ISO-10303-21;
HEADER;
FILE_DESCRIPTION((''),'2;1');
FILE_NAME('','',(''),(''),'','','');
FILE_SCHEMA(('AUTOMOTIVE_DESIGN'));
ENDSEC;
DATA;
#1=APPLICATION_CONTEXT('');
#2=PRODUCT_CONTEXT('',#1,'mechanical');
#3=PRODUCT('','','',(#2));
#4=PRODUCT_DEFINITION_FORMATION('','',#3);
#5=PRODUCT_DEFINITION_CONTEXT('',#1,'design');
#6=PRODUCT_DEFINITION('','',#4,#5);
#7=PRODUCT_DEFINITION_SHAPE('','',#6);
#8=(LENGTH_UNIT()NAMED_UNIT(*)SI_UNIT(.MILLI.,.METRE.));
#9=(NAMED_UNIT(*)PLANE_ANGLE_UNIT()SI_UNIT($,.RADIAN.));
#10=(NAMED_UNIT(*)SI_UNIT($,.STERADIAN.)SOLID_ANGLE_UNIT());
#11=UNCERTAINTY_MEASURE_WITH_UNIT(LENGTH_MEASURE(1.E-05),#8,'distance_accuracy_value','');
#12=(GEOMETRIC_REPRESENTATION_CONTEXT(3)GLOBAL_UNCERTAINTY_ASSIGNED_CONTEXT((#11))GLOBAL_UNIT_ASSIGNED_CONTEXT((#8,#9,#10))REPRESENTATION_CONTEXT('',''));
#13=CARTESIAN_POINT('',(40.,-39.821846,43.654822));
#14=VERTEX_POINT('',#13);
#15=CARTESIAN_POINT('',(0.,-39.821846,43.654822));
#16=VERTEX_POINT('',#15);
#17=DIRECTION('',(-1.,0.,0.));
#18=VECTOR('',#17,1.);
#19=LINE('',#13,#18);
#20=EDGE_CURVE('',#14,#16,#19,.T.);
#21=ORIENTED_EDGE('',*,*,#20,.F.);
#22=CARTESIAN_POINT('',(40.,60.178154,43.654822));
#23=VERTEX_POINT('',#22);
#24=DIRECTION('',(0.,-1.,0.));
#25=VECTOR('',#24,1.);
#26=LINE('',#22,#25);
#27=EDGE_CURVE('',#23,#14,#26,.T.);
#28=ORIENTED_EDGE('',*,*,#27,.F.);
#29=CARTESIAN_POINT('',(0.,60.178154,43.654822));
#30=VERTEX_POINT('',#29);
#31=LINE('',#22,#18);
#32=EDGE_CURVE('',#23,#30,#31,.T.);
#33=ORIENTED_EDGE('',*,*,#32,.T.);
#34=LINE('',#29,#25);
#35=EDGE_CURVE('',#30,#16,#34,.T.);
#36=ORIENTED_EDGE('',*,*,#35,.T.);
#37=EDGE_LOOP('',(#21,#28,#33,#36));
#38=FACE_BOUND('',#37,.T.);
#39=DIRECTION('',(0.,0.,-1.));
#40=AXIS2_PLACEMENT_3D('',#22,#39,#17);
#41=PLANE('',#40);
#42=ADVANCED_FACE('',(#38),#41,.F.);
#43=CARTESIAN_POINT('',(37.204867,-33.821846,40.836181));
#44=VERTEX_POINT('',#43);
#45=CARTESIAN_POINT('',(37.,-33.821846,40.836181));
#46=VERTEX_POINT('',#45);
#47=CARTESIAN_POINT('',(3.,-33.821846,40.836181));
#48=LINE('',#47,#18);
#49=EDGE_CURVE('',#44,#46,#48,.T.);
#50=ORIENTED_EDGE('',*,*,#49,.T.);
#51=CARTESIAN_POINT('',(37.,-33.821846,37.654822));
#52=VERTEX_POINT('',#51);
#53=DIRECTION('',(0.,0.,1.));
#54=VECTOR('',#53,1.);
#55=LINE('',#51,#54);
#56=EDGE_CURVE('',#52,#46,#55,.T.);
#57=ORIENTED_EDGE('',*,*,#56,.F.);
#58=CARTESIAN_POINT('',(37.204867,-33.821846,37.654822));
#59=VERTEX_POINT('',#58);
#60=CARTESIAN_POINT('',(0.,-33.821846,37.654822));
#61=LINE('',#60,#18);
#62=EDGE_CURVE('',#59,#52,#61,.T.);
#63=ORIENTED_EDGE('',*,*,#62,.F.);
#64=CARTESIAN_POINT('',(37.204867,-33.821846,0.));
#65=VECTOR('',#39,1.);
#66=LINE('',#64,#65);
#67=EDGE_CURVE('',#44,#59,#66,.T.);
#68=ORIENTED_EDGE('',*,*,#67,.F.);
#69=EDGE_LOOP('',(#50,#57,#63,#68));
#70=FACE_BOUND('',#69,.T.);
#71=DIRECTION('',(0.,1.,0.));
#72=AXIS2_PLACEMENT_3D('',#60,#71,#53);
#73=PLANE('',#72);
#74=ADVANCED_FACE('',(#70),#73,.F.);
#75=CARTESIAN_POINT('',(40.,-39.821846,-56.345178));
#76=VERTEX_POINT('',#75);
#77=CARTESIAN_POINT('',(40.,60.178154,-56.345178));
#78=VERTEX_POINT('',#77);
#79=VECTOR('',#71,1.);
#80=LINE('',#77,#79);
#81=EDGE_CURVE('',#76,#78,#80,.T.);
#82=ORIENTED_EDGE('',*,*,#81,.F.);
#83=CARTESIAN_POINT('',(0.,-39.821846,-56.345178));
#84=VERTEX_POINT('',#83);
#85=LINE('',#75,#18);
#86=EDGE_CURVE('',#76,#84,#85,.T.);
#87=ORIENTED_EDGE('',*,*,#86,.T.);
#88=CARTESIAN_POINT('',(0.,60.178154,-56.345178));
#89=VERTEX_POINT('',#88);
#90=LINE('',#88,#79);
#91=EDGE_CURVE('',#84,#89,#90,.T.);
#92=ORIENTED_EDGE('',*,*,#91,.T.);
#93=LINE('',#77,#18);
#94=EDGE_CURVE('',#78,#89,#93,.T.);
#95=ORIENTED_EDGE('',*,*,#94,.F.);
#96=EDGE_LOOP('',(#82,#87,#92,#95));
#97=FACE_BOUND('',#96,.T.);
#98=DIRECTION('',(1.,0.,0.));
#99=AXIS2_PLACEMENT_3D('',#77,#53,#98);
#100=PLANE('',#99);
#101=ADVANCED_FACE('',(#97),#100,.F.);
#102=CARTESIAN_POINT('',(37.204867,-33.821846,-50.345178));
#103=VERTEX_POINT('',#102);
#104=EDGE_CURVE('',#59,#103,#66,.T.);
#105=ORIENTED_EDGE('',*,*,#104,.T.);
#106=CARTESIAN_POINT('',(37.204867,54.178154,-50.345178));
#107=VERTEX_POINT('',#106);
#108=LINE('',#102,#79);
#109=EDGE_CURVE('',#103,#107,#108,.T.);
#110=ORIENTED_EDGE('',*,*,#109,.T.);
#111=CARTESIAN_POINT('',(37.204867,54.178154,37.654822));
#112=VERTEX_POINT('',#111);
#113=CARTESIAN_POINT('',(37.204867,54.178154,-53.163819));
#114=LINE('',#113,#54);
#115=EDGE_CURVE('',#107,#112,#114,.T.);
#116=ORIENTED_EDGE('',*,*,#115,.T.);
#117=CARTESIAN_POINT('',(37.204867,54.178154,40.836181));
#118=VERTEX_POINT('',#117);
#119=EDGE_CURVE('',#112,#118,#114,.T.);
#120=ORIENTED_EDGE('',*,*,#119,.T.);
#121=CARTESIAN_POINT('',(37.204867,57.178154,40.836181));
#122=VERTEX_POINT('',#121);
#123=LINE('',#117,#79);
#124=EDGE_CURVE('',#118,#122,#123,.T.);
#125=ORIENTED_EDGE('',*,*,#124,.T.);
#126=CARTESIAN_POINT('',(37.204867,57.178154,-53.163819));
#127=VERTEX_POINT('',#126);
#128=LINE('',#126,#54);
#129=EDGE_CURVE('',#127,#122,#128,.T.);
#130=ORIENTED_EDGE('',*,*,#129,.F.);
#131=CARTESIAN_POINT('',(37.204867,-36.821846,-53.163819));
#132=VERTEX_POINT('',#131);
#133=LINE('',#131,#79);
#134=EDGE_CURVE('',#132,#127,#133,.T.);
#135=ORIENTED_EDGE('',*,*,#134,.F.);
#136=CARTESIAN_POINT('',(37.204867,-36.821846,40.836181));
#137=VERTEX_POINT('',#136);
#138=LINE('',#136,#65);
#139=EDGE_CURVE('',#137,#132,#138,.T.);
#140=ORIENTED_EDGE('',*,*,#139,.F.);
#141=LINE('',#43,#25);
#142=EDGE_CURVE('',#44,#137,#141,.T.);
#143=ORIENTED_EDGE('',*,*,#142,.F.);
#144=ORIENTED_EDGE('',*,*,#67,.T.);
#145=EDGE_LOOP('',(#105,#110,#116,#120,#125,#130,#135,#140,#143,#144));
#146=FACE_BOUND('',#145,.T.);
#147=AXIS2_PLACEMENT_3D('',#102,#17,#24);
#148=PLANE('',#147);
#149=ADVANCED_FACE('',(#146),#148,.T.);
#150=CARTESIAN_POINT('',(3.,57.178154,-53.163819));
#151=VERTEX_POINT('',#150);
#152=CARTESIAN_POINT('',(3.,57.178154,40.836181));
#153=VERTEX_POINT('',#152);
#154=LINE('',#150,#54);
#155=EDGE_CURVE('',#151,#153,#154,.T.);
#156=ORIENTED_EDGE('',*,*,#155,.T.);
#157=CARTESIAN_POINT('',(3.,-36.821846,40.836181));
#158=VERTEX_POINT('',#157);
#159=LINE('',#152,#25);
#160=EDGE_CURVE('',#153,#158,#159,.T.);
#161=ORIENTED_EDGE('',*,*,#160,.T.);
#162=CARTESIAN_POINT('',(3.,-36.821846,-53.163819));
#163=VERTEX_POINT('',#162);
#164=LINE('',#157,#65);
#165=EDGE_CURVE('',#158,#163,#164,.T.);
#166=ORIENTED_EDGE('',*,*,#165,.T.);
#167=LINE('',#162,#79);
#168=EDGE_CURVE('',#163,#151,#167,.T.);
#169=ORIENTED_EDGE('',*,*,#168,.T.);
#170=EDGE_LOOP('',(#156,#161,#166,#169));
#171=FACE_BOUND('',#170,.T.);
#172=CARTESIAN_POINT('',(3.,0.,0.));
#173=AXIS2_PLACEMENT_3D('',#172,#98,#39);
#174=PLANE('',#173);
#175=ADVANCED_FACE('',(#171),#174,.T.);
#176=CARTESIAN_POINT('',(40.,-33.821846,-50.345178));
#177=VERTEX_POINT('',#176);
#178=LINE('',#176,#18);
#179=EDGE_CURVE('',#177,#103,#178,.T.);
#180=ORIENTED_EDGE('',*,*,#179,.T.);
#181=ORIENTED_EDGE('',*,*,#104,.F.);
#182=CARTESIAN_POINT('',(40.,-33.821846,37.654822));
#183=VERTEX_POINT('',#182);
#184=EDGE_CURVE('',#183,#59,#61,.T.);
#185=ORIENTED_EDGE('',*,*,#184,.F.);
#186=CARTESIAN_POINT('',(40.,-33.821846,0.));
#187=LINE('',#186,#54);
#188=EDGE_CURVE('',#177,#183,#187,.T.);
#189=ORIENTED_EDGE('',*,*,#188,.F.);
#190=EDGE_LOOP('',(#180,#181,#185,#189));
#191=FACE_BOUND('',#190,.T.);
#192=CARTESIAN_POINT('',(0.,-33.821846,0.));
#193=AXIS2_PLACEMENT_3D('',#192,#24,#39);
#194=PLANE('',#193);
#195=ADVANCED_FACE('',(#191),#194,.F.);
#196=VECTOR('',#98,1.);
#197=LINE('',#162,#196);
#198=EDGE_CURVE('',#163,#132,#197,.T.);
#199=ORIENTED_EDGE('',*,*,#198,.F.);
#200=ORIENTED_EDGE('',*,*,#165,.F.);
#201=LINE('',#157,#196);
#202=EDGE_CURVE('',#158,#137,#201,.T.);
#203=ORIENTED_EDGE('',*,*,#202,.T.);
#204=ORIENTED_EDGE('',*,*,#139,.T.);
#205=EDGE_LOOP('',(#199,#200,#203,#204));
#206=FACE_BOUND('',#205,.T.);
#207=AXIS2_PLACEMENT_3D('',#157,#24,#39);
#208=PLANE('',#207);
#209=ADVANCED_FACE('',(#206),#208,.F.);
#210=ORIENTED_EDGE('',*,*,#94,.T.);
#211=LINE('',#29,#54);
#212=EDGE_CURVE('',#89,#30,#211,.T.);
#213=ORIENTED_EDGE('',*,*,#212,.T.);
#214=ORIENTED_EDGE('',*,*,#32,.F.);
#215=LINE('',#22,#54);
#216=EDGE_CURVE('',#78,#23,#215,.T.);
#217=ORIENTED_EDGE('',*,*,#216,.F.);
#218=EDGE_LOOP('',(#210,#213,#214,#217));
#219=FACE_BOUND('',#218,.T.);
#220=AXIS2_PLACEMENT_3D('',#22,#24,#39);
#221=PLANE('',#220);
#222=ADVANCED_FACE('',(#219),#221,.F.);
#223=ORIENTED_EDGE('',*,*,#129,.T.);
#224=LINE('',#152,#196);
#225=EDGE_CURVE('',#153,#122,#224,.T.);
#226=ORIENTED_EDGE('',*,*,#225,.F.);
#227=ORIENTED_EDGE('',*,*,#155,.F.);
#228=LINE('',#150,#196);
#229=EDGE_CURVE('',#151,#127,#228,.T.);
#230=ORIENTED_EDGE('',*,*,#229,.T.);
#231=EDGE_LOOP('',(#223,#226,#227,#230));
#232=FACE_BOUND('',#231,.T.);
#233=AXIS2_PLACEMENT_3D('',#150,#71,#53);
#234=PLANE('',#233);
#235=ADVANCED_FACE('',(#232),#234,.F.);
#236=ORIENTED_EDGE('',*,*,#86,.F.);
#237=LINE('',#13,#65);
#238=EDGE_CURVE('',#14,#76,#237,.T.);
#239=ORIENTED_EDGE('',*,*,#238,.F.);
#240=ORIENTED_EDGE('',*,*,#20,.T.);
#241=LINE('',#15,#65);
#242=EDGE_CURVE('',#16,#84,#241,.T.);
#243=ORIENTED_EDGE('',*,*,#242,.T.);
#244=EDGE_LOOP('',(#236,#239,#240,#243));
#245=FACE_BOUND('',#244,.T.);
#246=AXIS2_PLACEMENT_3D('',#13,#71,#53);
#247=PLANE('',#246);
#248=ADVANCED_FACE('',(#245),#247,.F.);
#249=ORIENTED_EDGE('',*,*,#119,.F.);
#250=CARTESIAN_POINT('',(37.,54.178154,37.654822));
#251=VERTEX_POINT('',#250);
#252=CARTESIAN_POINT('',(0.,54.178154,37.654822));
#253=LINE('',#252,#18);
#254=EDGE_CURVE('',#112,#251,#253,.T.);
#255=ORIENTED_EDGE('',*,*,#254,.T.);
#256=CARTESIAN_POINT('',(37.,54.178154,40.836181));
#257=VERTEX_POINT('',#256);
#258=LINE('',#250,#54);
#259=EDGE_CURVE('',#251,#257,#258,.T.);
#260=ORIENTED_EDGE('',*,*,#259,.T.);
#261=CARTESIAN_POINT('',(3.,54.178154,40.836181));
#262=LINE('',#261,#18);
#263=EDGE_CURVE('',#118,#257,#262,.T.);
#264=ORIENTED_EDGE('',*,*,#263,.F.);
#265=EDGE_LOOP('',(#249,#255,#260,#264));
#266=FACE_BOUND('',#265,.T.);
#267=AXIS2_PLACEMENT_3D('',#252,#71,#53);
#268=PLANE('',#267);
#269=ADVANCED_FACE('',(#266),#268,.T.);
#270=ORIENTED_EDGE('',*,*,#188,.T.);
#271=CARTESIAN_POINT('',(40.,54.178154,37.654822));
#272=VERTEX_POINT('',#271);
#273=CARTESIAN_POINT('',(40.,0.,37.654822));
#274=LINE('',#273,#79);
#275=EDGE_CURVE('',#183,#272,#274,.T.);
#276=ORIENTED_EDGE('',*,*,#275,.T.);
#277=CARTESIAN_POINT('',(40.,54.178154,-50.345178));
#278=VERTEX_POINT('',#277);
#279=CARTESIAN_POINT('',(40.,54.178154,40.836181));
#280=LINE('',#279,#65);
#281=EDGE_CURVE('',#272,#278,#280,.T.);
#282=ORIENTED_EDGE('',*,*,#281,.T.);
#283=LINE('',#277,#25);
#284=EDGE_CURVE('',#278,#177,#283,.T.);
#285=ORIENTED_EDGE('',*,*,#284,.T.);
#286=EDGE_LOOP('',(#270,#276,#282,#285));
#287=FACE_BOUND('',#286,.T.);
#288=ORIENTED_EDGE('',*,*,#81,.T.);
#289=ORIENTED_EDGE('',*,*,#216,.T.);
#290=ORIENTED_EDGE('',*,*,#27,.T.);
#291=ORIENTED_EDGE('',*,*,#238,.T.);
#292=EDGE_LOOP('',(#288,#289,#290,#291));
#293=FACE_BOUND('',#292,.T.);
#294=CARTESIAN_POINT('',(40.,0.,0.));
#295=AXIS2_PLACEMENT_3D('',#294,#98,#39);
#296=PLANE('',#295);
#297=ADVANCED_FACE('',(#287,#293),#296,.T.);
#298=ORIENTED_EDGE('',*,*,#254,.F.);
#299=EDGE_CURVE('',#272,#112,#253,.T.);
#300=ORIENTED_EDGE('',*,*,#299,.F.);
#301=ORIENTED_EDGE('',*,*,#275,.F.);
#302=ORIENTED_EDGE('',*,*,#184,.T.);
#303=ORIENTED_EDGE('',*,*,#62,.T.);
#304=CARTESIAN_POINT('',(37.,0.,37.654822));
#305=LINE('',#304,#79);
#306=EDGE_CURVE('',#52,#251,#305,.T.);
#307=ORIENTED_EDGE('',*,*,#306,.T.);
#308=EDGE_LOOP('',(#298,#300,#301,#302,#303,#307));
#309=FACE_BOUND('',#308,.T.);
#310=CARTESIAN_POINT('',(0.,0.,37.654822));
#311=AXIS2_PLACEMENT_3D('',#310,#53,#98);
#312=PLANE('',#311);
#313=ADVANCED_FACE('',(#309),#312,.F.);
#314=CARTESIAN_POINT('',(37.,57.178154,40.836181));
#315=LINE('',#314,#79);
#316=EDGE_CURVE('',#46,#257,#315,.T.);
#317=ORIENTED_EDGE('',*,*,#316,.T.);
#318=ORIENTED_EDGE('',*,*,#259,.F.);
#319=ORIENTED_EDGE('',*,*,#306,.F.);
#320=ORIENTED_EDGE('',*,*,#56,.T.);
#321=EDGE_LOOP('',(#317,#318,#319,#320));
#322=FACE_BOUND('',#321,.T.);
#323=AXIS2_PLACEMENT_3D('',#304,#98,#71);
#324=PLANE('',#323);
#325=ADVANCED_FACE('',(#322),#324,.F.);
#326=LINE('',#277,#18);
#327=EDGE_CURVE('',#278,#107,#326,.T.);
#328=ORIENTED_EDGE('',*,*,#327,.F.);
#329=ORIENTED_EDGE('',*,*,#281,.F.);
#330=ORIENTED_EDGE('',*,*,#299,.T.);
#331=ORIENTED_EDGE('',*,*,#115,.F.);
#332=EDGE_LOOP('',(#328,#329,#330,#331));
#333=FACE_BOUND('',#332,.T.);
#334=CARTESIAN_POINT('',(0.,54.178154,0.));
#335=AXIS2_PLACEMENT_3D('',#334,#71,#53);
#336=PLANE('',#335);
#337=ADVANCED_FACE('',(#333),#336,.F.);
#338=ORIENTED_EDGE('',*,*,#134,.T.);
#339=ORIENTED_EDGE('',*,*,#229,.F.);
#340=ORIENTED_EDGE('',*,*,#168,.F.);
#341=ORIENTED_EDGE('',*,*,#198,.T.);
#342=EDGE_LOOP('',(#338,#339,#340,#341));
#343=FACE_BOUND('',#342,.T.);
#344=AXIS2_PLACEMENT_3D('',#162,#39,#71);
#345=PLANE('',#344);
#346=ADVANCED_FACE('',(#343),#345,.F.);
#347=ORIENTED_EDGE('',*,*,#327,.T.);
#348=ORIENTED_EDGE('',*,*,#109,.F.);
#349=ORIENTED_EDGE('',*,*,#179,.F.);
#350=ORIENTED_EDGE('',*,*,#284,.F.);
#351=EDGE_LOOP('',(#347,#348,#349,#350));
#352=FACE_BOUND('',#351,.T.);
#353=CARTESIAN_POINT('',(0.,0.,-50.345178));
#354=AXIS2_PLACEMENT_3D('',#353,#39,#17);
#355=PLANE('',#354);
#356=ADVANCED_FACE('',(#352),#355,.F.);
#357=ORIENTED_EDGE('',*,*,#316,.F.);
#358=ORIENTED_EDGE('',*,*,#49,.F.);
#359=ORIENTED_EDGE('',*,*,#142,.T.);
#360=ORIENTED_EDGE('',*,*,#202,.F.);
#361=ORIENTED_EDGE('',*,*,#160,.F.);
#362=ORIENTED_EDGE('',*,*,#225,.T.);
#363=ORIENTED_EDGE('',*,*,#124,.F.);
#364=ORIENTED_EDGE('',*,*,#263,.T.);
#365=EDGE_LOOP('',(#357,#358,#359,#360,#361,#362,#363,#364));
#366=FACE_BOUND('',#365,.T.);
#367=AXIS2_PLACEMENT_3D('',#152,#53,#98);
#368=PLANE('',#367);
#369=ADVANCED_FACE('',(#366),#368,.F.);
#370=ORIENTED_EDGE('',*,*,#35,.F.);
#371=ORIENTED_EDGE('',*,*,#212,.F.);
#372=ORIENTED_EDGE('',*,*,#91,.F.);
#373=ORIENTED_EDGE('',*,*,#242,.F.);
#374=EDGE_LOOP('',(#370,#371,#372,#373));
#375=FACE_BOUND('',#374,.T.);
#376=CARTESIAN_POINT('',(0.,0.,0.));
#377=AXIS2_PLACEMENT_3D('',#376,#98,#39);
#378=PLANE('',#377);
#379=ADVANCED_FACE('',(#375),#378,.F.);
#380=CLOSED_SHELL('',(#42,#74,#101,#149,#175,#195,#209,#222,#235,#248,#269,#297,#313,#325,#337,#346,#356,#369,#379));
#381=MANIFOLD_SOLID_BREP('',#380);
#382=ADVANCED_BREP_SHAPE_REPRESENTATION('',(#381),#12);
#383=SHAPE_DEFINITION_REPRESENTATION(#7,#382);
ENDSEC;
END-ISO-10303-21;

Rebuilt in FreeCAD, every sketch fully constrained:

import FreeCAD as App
import Part
import Sketcher

V = App.Vector
Q = App.Units.Quantity


def add_polygon(sketch, points):
    """Adds a closed chain of lines whose ends are joined by coincident constraints."""
    first, n = sketch.GeometryCount, len(points)
    for a, b in zip(points, points[1:] + points[:1]):
        sketch.addGeometry(Part.LineSegment(App.Vector(*a, 0), App.Vector(*b, 0)), False)
    for i in range(n):
        sketch.addConstraint(Sketcher.Constraint("Coincident", first + i, 2, first + (i + 1) % n, 1))

doc = App.newDocument("Part")
body = doc.addObject("PartDesign::Body", "Body")

# Sketch on YZ plane
sketch1 = body.newObject("Sketcher::SketchObject", "Sketch")
sketch1.AttachmentSupport = (doc.getObject("YZ_Plane"), [""])
sketch1.MapMode = "FlatFace"
add_polygon(sketch1, [(60, 44), (-40, 44), (-40, -56), (60, -56)])  # lines 0-3
sketch1.addConstraint([
    Sketcher.Constraint("Horizontal", 0),
    Sketcher.Constraint("Vertical", 1),
    Sketcher.Constraint("Horizontal", 2),
    Sketcher.Constraint("Vertical", 3),
    Sketcher.Constraint("Equal", 2, 1),
    Sketcher.Constraint("DistanceX", 0, 2, 0, 1, Q("100 mm")),
    Sketcher.Constraint("DistanceX", 0, 2, -1, 1, Q("39.821846 mm")),
    Sketcher.Constraint("DistanceY", -1, 1, 0, 2, Q("43.654822 mm")),
])
pad1 = body.newObject("PartDesign::Pad", "Pad")
pad1.Profile = sketch1
pad1.Length = 40

# Sketch on YZ plane
sketch2 = body.newObject("Sketcher::SketchObject", "Sketch001")
sketch2.AttachmentSupport = (doc.getObject("YZ_Plane"), [""])
sketch2.MapMode = "FlatFace"
sketch2.AttachmentOffset = App.Placement(V(0, 0, 40), App.Rotation())
add_polygon(sketch2, [(57, 41), (-37, 41), (-37, -53), (57, -53)])  # lines 0-3
sketch2.addConstraint([
    Sketcher.Constraint("Horizontal", 0),
    Sketcher.Constraint("Vertical", 1),
    Sketcher.Constraint("Horizontal", 2),
    Sketcher.Constraint("Vertical", 3),
    Sketcher.Constraint("Equal", 2, 1),
    Sketcher.Constraint("DistanceX", 0, 2, 0, 1, Q("94 mm")),
    Sketcher.Constraint("DistanceY", -1, 1, 0, 2, Q("40.836181 mm")),
    Sketcher.Constraint("DistanceX", 0, 2, -1, 1, Q("36.821846 mm")),
])
pocket1 = body.newObject("PartDesign::Pocket", "Pocket")
pocket1.Profile = sketch2
pocket1.Length = 37

# Sketch on XY plane
sketch3 = body.newObject("Sketcher::SketchObject", "Sketch002")
sketch3.AttachmentSupport = (doc.getObject("XY_Plane"), [""])
sketch3.MapMode = "FlatFace"
sketch3.AttachmentOffset = App.Placement(V(0, 0, 43.654822), App.Rotation())
add_polygon(sketch3, [(37, 54.2), (37, -33.8), (40, -33.8), (40, 54.2)])  # lines 0-3
sketch3.addConstraint([
    Sketcher.Constraint("Vertical", 0),
    Sketcher.Constraint("Horizontal", 1),
    Sketcher.Constraint("Vertical", 2),
    Sketcher.Constraint("Horizontal", 3),
    Sketcher.Constraint("DistanceX", 1, 1, 1, 2, Q("3 mm")),
    Sketcher.Constraint("DistanceY", 0, 2, 0, 1, Q("88 mm")),
    Sketcher.Constraint("DistanceX", -1, 1, 0, 2, Q("37 mm")),
    Sketcher.Constraint("DistanceY", 0, 2, -1, 1, Q("33.821846 mm")),
])
pad2 = body.newObject("PartDesign::Pad", "Pad001")
pad2.Profile = sketch3
pad2.Length = 6
pad2.Reversed = True

# Sketch on XY plane
sketch4 = body.newObject("Sketcher::SketchObject", "Sketch003")
sketch4.AttachmentSupport = (doc.getObject("XY_Plane"), [""])
sketch4.MapMode = "FlatFace"
sketch4.AttachmentOffset = App.Placement(V(0, 0, -56.345178), App.Rotation())
add_polygon(sketch4, [(40, 54.2), (40, -33.8), (37.2, -33.8), (37.2, 54.2)])  # lines 0-3
sketch4.addConstraint([
    Sketcher.Constraint("Vertical", 0),
    Sketcher.Constraint("Horizontal", 1),
    Sketcher.Constraint("Vertical", 2),
    Sketcher.Constraint("Horizontal", 3),
    Sketcher.Constraint("DistanceY", 0, 2, 0, 1, Q("88 mm")),
    Sketcher.Constraint("DistanceX", -1, 1, 0, 2, Q("40 mm")),
    Sketcher.Constraint("DistanceX", 1, 2, 1, 1, Q("2.795133 mm")),
    Sketcher.Constraint("DistanceY", 0, 2, -1, 1, Q("33.821846 mm")),
])
pad3 = body.newObject("PartDesign::Pad", "Pad002")
pad3.Profile = sketch4
pad3.Length = 6

# Sketch on XZ plane
sketch5 = body.newObject("Sketcher::SketchObject", "Sketch004")
sketch5.AttachmentSupport = (doc.getObject("XZ_Plane"), [""])
sketch5.MapMode = "FlatFace"
sketch5.AttachmentOffset = App.Placement(V(0, 0, 39.821846), App.Rotation())
add_polygon(sketch5, [(40, 40.8), (37.2, 40.8), (37.2, -53.2), (40, -53.2)])  # lines 0-3
sketch5.addConstraint([
    Sketcher.Constraint("Horizontal", 0),
    Sketcher.Constraint("Vertical", 1),
    Sketcher.Constraint("Horizontal", 2),
    Sketcher.Constraint("Vertical", 3),
    Sketcher.Constraint("DistanceY", 1, 2, 1, 1, Q("94 mm")),
    Sketcher.Constraint("DistanceX", -1, 1, 2, 2, Q("40 mm")),
    Sketcher.Constraint("DistanceX", 0, 2, 0, 1, Q("2.795133 mm")),
    Sketcher.Constraint("DistanceY", -1, 1, 0, 2, Q("40.836181 mm")),
])
pad4 = body.newObject("PartDesign::Pad", "Pad003")
pad4.Profile = sketch5
pad4.Length = 6
pad4.Reversed = True

# Sketch on XZ plane
sketch6 = body.newObject("Sketcher::SketchObject", "Sketch005")
sketch6.AttachmentSupport = (doc.getObject("XZ_Plane"), [""])
sketch6.MapMode = "FlatFace"
sketch6.AttachmentOffset = App.Placement(V(0, 0, -60.178154), App.Rotation())
add_polygon(sketch6, [(37.2, -53.2), (37.2, 40.8), (40, 40.8), (40, -53.2)])  # lines 0-3
sketch6.addConstraint([
    Sketcher.Constraint("Vertical", 0),
    Sketcher.Constraint("Horizontal", 1),
    Sketcher.Constraint("Vertical", 2),
    Sketcher.Constraint("Horizontal", 3),
    Sketcher.Constraint("DistanceY", 0, 1, 0, 2, Q("94 mm")),
    Sketcher.Constraint("DistanceX", -1, 1, 1, 2, Q("40 mm")),
    Sketcher.Constraint("DistanceX", 1, 1, 1, 2, Q("2.795133 mm")),
    Sketcher.Constraint("DistanceY", -1, 1, 0, 2, Q("40.836181 mm")),
])
pad5 = body.newObject("PartDesign::Pad", "Pad004")
pad5.Profile = sketch6
pad5.Length = 6

doc.recompute()
